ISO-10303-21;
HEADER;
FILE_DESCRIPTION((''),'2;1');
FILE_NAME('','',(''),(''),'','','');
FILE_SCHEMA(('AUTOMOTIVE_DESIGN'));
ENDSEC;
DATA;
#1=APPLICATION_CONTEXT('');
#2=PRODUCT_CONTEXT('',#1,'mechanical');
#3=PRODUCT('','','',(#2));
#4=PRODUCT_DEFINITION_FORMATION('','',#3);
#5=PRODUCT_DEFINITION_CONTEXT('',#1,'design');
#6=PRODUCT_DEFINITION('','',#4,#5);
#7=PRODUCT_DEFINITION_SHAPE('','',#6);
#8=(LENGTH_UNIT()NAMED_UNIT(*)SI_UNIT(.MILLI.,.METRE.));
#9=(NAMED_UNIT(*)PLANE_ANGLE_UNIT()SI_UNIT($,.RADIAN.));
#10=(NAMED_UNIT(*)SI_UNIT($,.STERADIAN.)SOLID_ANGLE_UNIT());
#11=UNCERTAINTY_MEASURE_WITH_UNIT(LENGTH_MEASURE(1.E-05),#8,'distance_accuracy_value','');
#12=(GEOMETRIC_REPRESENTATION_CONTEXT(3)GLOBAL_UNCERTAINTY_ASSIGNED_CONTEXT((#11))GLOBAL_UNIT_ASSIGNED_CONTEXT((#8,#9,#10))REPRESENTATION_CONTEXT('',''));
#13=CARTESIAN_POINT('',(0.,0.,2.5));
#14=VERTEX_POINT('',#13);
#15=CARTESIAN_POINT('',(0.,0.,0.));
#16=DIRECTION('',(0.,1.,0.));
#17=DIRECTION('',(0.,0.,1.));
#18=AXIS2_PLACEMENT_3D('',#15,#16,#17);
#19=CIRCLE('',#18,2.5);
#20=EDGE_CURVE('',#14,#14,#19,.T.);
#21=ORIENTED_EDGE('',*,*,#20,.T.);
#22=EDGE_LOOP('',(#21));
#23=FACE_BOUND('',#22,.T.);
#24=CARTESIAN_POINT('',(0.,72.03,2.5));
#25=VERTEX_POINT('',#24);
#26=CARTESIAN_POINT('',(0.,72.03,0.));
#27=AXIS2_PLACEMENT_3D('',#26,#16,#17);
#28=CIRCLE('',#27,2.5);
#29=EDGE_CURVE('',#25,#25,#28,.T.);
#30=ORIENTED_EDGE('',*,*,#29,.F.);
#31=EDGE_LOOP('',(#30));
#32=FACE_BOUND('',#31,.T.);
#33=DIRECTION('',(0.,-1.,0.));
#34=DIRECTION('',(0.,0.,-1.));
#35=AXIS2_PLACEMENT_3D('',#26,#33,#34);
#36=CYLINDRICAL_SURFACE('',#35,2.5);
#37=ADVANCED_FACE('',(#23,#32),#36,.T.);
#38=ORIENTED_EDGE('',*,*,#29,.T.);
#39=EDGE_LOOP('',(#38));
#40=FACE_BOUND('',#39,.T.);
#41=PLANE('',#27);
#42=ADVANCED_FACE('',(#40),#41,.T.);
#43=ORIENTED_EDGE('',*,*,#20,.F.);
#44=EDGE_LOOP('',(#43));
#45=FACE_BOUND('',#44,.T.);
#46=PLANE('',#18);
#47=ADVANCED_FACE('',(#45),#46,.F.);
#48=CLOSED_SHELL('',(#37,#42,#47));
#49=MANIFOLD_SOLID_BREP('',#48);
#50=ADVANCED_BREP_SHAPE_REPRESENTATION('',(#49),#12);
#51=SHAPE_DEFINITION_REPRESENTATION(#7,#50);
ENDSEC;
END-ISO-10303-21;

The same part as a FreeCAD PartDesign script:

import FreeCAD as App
import Part
import Sketcher

doc = App.newDocument("Part")
body = doc.addObject("PartDesign::Body", "Body")

sketch1 = body.newObject("Sketcher::SketchObject", "Sketch")
sketch1.AttachmentSupport = (doc.getObject("XZ_Plane"), [""])
sketch1.MapMode = "FlatFace"
sketch1.addGeometry(Part.Circle(App.Vector(0, 0, 0), App.Vector(0, 0, 1), 2.5), False)
sketch1.addConstraint(Sketcher.Constraint("Coincident", 0, 3, -1, 1))
sketch1.addConstraint(Sketcher.Constraint("Diameter", 0, 5.0))
pad1 = body.newObject("PartDesign::Pad", "Pad")
pad1.Profile = sketch1
pad1.Length = 72.03
pad1.Reversed = True

doc.recompute()
